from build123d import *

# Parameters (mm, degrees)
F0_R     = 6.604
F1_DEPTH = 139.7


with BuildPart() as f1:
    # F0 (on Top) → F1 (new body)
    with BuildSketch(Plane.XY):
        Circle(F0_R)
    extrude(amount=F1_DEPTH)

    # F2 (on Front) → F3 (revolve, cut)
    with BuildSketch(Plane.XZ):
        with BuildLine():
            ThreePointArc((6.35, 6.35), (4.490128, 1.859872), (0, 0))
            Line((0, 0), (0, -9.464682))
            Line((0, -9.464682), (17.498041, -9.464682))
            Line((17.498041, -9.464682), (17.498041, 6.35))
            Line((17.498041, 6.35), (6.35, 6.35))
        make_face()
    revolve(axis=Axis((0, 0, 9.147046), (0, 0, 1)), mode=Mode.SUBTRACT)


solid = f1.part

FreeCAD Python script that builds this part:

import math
import FreeCAD as App
import Part
import Sketcher

V = App.Vector
Q = App.Units.Quantity

doc = App.newDocument("Part")
body = doc.addObject("PartDesign::Body", "Body")

# Sketch on XY plane
sketch1 = body.newObject("Sketcher::SketchObject", "Sketch")
sketch1.AttachmentSupport = (doc.getObject("XY_Plane"), [""])
sketch1.MapMode = "FlatFace"
sketch1.addGeometry(Part.Circle(V(0, 0, 0), V(0, 0, 1), 7), False)
sketch1.addConstraint([
    Sketcher.Constraint("Coincident", 0, 3, -1, 1),
    Sketcher.Constraint("Diameter", 0, Q("0.52 in")),
])
pad1 = body.newObject("PartDesign::Pad", "Pad")
pad1.Profile = sketch1
pad1.Length = Q("5.5 in")

# Sketch on XZ plane
sketch2 = body.newObject("Sketcher::SketchObject", "Sketch001")
sketch2.AttachmentSupport = (doc.getObject("XZ_Plane"), [""])
sketch2.MapMode = "FlatFace"
sketch2.addGeometry([
    Part.ArcOfCircle(Part.Circle(V(0, 6, 0), V(0, 0, 1), 6), math.radians(-90), math.radians(0)),  # 0
    Part.LineSegment(V(0, 0, 0), V(0, -9, 0)),  # 1
    Part.LineSegment(V(0, -9, 0), V(17, -9, 0)),  # 2
    Part.LineSegment(V(17, -9, 0), V(17, 6, 0)),  # 3
    Part.LineSegment(V(17, 6, 0), V(6, 6, 0)),  # 4
], False)
sketch2.addConstraint([
    Sketcher.Constraint("Coincident", 0, 1, 1, 1),
    Sketcher.Constraint("Coincident", 1, 2, 2, 1),
    Sketcher.Constraint("Coincident", 2, 2, 3, 1),
    Sketcher.Constraint("Coincident", 3, 2, 4, 1),
    Sketcher.Constraint("Coincident", 4, 2, 0, 2),
    Sketcher.Constraint("Vertical", 1),
    Sketcher.Constraint("Horizontal", 2),
    Sketcher.Constraint("Vertical", 3),
    Sketcher.Constraint("Horizontal", 4),
    Sketcher.Constraint("Coincident", 0, 1, -1, 1),
    Sketcher.Constraint("PointOnObject", 0, 3, -2),
    Sketcher.Constraint("Horizontal", 0, 3, 3, 2),
    Sketcher.Constraint("Radius", 0, Q("0.25 in")),
    Sketcher.Constraint("DistanceX", 2, 1, 2, 2, Q("17.498041 mm")),
    Sketcher.Constraint("DistanceY", 1, 2, 1, 1, Q("9.464682 mm")),
])
groove = body.newObject("PartDesign::Groove", "Groove")
groove.Profile = sketch2
groove.ReferenceAxis = (sketch2, ["V_Axis"])
groove.Angle = 360

doc.recompute()
